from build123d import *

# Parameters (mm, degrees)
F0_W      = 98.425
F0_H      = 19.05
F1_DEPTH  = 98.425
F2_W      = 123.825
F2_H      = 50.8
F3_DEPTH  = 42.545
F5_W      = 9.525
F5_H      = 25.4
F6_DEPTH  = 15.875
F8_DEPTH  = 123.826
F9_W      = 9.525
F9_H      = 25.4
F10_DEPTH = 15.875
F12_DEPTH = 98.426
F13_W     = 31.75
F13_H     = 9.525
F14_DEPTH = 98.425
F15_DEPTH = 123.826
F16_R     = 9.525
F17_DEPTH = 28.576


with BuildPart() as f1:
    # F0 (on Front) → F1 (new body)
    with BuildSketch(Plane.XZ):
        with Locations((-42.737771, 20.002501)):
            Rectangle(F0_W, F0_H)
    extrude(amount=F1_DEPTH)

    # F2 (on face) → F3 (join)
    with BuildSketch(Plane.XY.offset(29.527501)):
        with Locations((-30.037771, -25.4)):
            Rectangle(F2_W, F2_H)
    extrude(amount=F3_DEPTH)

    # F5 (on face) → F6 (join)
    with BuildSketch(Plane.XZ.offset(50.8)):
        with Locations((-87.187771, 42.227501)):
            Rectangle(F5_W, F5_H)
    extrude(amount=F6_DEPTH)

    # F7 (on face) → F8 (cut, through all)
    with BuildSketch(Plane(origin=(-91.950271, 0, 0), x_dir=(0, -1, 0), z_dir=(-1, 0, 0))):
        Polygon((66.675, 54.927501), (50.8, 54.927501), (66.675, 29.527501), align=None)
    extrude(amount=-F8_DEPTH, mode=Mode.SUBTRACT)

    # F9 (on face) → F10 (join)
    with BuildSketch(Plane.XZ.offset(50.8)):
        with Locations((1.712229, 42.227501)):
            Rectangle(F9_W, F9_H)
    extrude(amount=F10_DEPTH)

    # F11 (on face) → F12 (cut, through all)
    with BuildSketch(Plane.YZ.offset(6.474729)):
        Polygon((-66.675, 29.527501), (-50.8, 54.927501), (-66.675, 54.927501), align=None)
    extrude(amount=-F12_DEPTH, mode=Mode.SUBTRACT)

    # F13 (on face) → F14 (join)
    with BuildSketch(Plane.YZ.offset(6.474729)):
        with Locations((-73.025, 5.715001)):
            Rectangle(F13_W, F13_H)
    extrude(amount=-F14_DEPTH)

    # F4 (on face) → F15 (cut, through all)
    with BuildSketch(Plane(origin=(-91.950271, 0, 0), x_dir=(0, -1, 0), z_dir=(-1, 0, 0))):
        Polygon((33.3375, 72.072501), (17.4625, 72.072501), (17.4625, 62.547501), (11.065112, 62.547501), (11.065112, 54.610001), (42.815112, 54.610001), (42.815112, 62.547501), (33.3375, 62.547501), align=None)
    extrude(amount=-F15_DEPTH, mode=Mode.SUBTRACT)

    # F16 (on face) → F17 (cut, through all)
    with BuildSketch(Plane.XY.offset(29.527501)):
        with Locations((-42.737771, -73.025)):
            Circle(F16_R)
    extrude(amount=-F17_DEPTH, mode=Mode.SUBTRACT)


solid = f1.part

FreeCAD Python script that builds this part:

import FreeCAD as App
import Part
import Sketcher
from FreeCAD import Vector
Q = App.Units.Quantity


def add_polygon(sketch, points):
    """Adds a closed chain of lines whose ends are joined by coincident constraints."""
    first, n = sketch.GeometryCount, len(points)
    for a, b in zip(points, points[1:] + points[:1]):
        sketch.addGeometry(Part.LineSegment(App.Vector(*a, 0), App.Vector(*b, 0)), False)
    for i in range(n):
        sketch.addConstraint(Sketcher.Constraint("Coincident", first + i, 2, first + (i + 1) % n, 1))

doc = App.newDocument("Part")
params = doc.addObject("Spreadsheet::Sheet", "Params")
for row, (alias, value) in enumerate([
    ("sketch1_height", "0.75 in"),
    ("sketch1_width", "3.875 in"),
    ("pad1_length", "3.875 in"),
    ("sketch2_height", "2 in"),
    ("sketch2_width", "4.875 in"),
    ("pad2_length", "1.675 in"),
    ("sketch3_height", "1 in"),
    ("sketch3_width", "0.375 in"),
    ("pad3_length", "0.625 in"),
    ("sketch4_height", "1 in"),
    ("sketch4_width", "0.625 in"),
    ("sketch5_height", "1 in"),
    ("sketch5_width", "0.375 in"),
    ("pad4_length", "0.625 in"),
    ("sketch6_height", "1 in"),
    ("sketch6_width", "0.625 in"),
    ("sketch7_width", "1.25 in"),
    ("sketch7_height", "0.375 in"),
    ("pad5_length", "3.875 in"),
    ("sketch8_width", "1.25 in"),
    ("sketch8_width2", "0.625 in"),
    ("sketch8_height", "0.375 in"),
    ("sketch8_height2", "0.3125 in"),
    ("sketch9_diameter", "0.75 in"),
], start=1):
    params.set(f"A{row}", alias)
    params.set(f"B{row}", "=" + value)
    params.setAlias(f"B{row}", alias)

body = doc.addObject("PartDesign::Body", "Body")

# Sketch on XZ plane
sketch1 = body.newObject("Sketcher::SketchObject", "Sketch")
sketch1.AttachmentSupport = (doc.getObject("XZ_Plane"), [""])
sketch1.MapMode = "FlatFace"
add_polygon(sketch1, [(-92, 30), (-92, 10), (6, 10), (6, 30)])  # lines 0-3
sketch1.addConstraint([
    Sketcher.Constraint("Vertical", 0),
    Sketcher.Constraint("Horizontal", 1),
    Sketcher.Constraint("Vertical", 2),
    Sketcher.Constraint("Horizontal", 3),
    Sketcher.Constraint("DistanceY", 0, 2, 0, 1, Q("0.75 in")),
    Sketcher.Constraint("DistanceX", 1, 1, 1, 2, Q("3.875 in")),
    Sketcher.Constraint("DistanceY", -1, 1, 0, 2, Q("0.4125 in")),
    Sketcher.Constraint("DistanceX", 0, 2, -1, 1, Q("91.950271 mm")),
])
sketch1.setExpression("Constraints[8]", "Params.sketch1_height")
sketch1.setExpression("Constraints[9]", "Params.sketch1_width")
pad1 = body.newObject("PartDesign::Pad", "Pad")
pad1.Profile = sketch1
pad1.setExpression("Length", "Params.pad1_length")

# Sketch on XY plane
sketch2 = body.newObject("Sketcher::SketchObject", "Sketch001")
sketch2.AttachmentSupport = (doc.getObject("XY_Plane"), [""])
sketch2.MapMode = "FlatFace"
sketch2.AttachmentOffset = App.Placement(Vector(0, 0, 1.1625 * 25.4), App.Rotation())
add_polygon(sketch2, [(-92, 0), (-92, -51), (32, -51), (32, 0)])  # lines 0-3
sketch2.addConstraint([
    Sketcher.Constraint("Vertical", 0),
    Sketcher.Constraint("Horizontal", 1),
    Sketcher.Constraint("Vertical", 2),
    Sketcher.Constraint("Horizontal", 3),
    Sketcher.Constraint("PointOnObject", 2, 2, -1),
    Sketcher.Constraint("DistanceY", 0, 2, 0, 1, Q("2 in")),
    Sketcher.Constraint("DistanceX", 1, 1, 1, 2, Q("4.875 in")),
    Sketcher.Constraint("DistanceX", 0, 2, -1, 1, Q("91.950271 mm")),
])
sketch2.setExpression("Constraints[9]", "Params.sketch2_height")
sketch2.setExpression("Constraints[10]", "Params.sketch2_width")
pad2 = body.newObject("PartDesign::Pad", "Pad001")
pad2.Profile = sketch2
pad2.setExpression("Length", "Params.pad2_length")

# Sketch on XZ plane
sketch3 = body.newObject("Sketcher::SketchObject", "Sketch002")
sketch3.AttachmentSupport = (doc.getObject("XZ_Plane"), [""])
sketch3.MapMode = "FlatFace"
sketch3.AttachmentOffset = App.Placement(Vector(0, 0, 2 * 25.4), App.Rotation())
add_polygon(sketch3, [(-92, 55), (-92, 30), (-82, 30), (-82, 55)])  # lines 0-3
sketch3.addConstraint([
    Sketcher.Constraint("Vertical", 0),
    Sketcher.Constraint("Horizontal", 1),
    Sketcher.Constraint("Vertical", 2),
    Sketcher.Constraint("Horizontal", 3),
    Sketcher.Constraint("DistanceY", 0, 2, 0, 1, Q("1 in")),
    Sketcher.Constraint("DistanceX", 1, 1, 1, 2, Q("0.375 in")),
    Sketcher.Constraint("DistanceY", -1, 1, 0, 2, Q("1.1625 in")),
    Sketcher.Constraint("DistanceX", 0, 2, -1, 1, Q("91.950271 mm")),
])
sketch3.setExpression("Constraints[8]", "Params.sketch3_height")
sketch3.setExpression("Constraints[9]", "Params.sketch3_width")
pad3 = body.newObject("PartDesign::Pad", "Pad002")
pad3.Profile = sketch3
pad3.setExpression("Length", "Params.pad3_length")

# Sketch on YZ plane
sketch4 = body.newObject("Sketcher::SketchObject", "Sketch003")
sketch4.AttachmentSupport = (doc.getObject("YZ_Plane"), [""])
sketch4.MapMode = "FlatFace"
sketch4.AttachmentOffset = App.Placement(Vector(0, 0, -91.950271), App.Rotation())
add_polygon(sketch4, [(-67, 55), (-51, 55), (-67, 30)])  # lines 0-2
sketch4.addConstraint([
    Sketcher.Constraint("Horizontal", 0),
    Sketcher.Constraint("Vertical", 2),
    Sketcher.Constraint("DistanceY", 2, 1, 2, 2, Q("1 in")),
    Sketcher.Constraint("DistanceX", 0, 2, -1, 1, Q("2 in")),
    Sketcher.Constraint("DistanceX", 0, 1, 0, 2, Q("0.625 in")),
    Sketcher.Constraint("DistanceY", -1, 1, 0, 2, Q("2.1625 in")),
])
sketch4.setExpression("Constraints[5]", "Params.sketch4_height")
sketch4.setExpression("Constraints[7]", "Params.sketch4_width")
pocket1 = body.newObject("PartDesign::Pocket", "Pocket")
pocket1.Profile = sketch4
pocket1.Type = "ThroughAll"
pocket1.Reversed = True

# Sketch on XZ plane
sketch5 = body.newObject("Sketcher::SketchObject", "Sketch004")
sketch5.AttachmentSupport = (doc.getObject("XZ_Plane"), [""])
sketch5.MapMode = "FlatFace"
sketch5.AttachmentOffset = App.Placement(Vector(0, 0, 2 * 25.4), App.Rotation())
add_polygon(sketch5, [(-3, 55), (-3, 30), (6, 30), (6, 55)])  # lines 0-3
sketch5.addConstraint([
    Sketcher.Constraint("Vertical", 0),
    Sketcher.Constraint("Horizontal", 1),
    Sketcher.Constraint("Vertical", 2),
    Sketcher.Constraint("Horizontal", 3),
    Sketcher.Constraint("DistanceY", 0, 2, 0, 1, Q("1 in")),
    Sketcher.Constraint("DistanceX", 1, 1, 1, 2, Q("0.375 in")),
    Sketcher.Constraint("DistanceY", -1, 1, 0, 2, Q("1.1625 in")),
    Sketcher.Constraint("DistanceX", 0, 2, -1, 1, Q("3.050271 mm")),
])
sketch5.setExpression("Constraints[8]", "Params.sketch5_height")
sketch5.setExpression("Constraints[9]", "Params.sketch5_width")
pad4 = body.newObject("PartDesign::Pad", "Pad003")
pad4.Profile = sketch5
pad4.setExpression("Length", "Params.pad4_length")

# Sketch on YZ plane
sketch6 = body.newObject("Sketcher::SketchObject", "Sketch005")
sketch6.AttachmentSupport = (doc.getObject("YZ_Plane"), [""])
sketch6.MapMode = "FlatFace"
sketch6.AttachmentOffset = App.Placement(Vector(0, 0, 6.474729), App.Rotation())
add_polygon(sketch6, [(-67, 30), (-51, 55), (-67, 55)])  # lines 0-2
sketch6.addConstraint([
    Sketcher.Constraint("Horizontal", 1),
    Sketcher.Constraint("Vertical", 2),
    Sketcher.Constraint("DistanceY", 2, 2, 2, 1, Q("1 in")),
    Sketcher.Constraint("DistanceX", 0, 2, -1, 1, Q("2 in")),
    Sketcher.Constraint("DistanceX", 1, 2, 1, 1, Q("0.625 in")),
    Sketcher.Constraint("DistanceY", -1, 1, 0, 2, Q("2.1625 in")),
])
sketch6.setExpression("Constraints[5]", "Params.sketch6_height")
sketch6.setExpression("Constraints[7]", "Params.sketch6_width")
pocket2 = body.newObject("PartDesign::Pocket", "Pocket001")
pocket2.Profile = sketch6
pocket2.Type = "ThroughAll"

# Sketch on YZ plane
sketch7 = body.newObject("Sketcher::SketchObject", "Sketch006")
sketch7.AttachmentSupport = (doc.getObject("YZ_Plane"), [""])
sketch7.MapMode = "FlatFace"
sketch7.AttachmentOffset = App.Placement(Vector(0, 0, 6.474729), App.Rotation())
add_polygon(sketch7, [(-89, 10), (-89, 1), (-57, 1), (-57, 10)])  # lines 0-3
sketch7.addConstraint([
    Sketcher.Constraint("Vertical", 0),
    Sketcher.Constraint("Horizontal", 1),
    Sketcher.Constraint("Vertical", 2),
    Sketcher.Constraint("Horizontal", 3),
    Sketcher.Constraint("DistanceX", 1, 1, 1, 2, Q("1.25 in")),
    Sketcher.Constraint("DistanceX", 0, 2, -1, 1, Q("3.5 in")),
    Sketcher.Constraint("DistanceY", 0, 2, 0, 1, Q("0.375 in")),
    Sketcher.Constraint("DistanceY", -1, 1, 0, 2, Q("0.0375 in")),
])
sketch7.setExpression("Constraints[8]", "Params.sketch7_width")
sketch7.setExpression("Constraints[10]", "Params.sketch7_height")
pad5 = body.newObject("PartDesign::Pad", "Pad004")
pad5.Profile = sketch7
pad5.setExpression("Length", "Params.pad5_length")
pad5.Reversed = True

# Sketch on YZ plane
sketch8 = body.newObject("Sketcher::SketchObject", "Sketch007")
sketch8.AttachmentSupport = (doc.getObject("YZ_Plane"), [""])
sketch8.MapMode = "FlatFace"
sketch8.AttachmentOffset = App.Placement(Vector(0, 0, -91.950271), App.Rotation())
add_polygon(sketch8, [(-33, 72), (-17, 72), (-17, 63), (-11, 63), (-11, 55), (-43, 55), (-43, 63), (-33, 63)])  # lines 0-7
sketch8.addConstraint([
    Sketcher.Constraint("Horizontal", 0),
    Sketcher.Constraint("Vertical", 1),
    Sketcher.Constraint("Horizontal", 2),
    Sketcher.Constraint("Vertical", 3),
    Sketcher.Constraint("Horizontal", 4),
    Sketcher.Constraint("Vertical", 5),
    Sketcher.Constraint("Horizontal", 6),
    Sketcher.Constraint("Vertical", 7),
    Sketcher.Constraint("Horizontal", 2, 2, 5, 2),
    Sketcher.Constraint("DistanceX", 4, 2, 4, 1, Q("1.25 in")),
    Sketcher.Constraint("DistanceX", 0, 1, 0, 2, Q("0.625 in")),
    Sketcher.Constraint("DistanceY", 1, 2, 1, 1, Q("0.375 in")),
    Sketcher.Constraint("DistanceY", 3, 2, 3, 1, Q("0.3125 in")),
    Sketcher.Constraint("DistanceY", -1, 1, 3, 2, Q("2.15 in")),
    Sketcher.Constraint("DistanceX", 0, 2, -1, 1, Q("0.6875 in")),
    Sketcher.Constraint("DistanceX", 2, 1, 2, 2, Q("6.397388 mm")),
])
sketch8.setExpression("Constraints[17]", "Params.sketch8_width")
sketch8.setExpression("Constraints[18]", "Params.sketch8_width2")
sketch8.setExpression("Constraints[19]", "Params.sketch8_height")
sketch8.setExpression("Constraints[20]", "Params.sketch8_height2")
pocket3 = body.newObject("PartDesign::Pocket", "Pocket002")
pocket3.Profile = sketch8
pocket3.Type = "ThroughAll"
pocket3.Reversed = True

# Sketch on XY plane
sketch9 = body.newObject("Sketcher::SketchObject", "Sketch008")
sketch9.AttachmentSupport = (doc.getObject("XY_Plane"), [""])
sketch9.MapMode = "FlatFace"
sketch9.AttachmentOffset = App.Placement(Vector(0, 0, 1.1625 * 25.4), App.Rotation())
sketch9.addGeometry(Part.Circle(Vector(-43, -73, 0), Vector(0, 0, 1), 10), False)
sketch9.addConstraint([
    Sketcher.Constraint("Diameter", 0, Q("0.75 in")),
    Sketcher.Constraint("DistanceY", 0, 3, -1, 1, Q("2.875 in")),
    Sketcher.Constraint("DistanceX", 0, 3, -1, 1, Q("42.737771 mm")),
])
sketch9.setExpression("Constraints[0]", "Params.sketch9_diameter")
pocket4 = body.newObject("PartDesign::Pocket", "Pocket003")
pocket4.Profile = sketch9
pocket4.Type = "ThroughAll"

doc.recompute()
